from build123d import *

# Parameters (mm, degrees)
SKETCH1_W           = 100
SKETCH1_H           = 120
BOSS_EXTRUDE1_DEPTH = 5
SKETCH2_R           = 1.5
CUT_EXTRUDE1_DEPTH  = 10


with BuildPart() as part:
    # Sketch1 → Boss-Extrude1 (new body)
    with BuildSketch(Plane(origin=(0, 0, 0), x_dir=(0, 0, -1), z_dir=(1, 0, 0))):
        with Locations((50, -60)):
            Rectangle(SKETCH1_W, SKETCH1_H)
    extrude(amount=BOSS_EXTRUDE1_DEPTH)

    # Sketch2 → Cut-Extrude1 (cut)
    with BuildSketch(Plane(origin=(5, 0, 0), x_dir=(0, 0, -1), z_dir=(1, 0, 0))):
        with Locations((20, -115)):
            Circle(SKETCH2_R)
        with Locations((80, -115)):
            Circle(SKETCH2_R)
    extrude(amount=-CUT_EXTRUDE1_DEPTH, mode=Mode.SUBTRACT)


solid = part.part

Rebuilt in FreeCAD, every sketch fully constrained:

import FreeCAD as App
import Part
import Sketcher

V = App.Vector
Q = App.Units.Quantity

doc = App.newDocument("Part")
body = doc.addObject("PartDesign::Body", "Body")

# Sketch on YZ plane
sketch1 = doc.addObject("Sketcher::SketchObject", "Sketch")
body.addObject(sketch1)
sketch1.AttachmentSupport = (doc.YZ_Plane, [""])
sketch1.MapMode = "FlatFace"
sketch1.addGeometry([
    Part.LineSegment(V(0, 0, 0), V(-120, 0, 0)),
    Part.LineSegment(V(-120, 0, 0), V(-120, -100, 0)),
    Part.LineSegment(V(-120, -100, 0), V(0, -100, 0)),
    Part.LineSegment(V(0, -100, 0), V(0, 0, 0)),
], False)
sketch1.addConstraint([
    Sketcher.Constraint("Coincident", 0, 2, 1, 1),
    Sketcher.Constraint("Coincident", 1, 2, 2, 1),
    Sketcher.Constraint("Coincident", 2, 2, 3, 1),
    Sketcher.Constraint("Coincident", 3, 2, 0, 1),
    Sketcher.Constraint("Horizontal", 0),
    Sketcher.Constraint("Vertical", 1),
    Sketcher.Constraint("Horizontal", 2),
    Sketcher.Constraint("Vertical", 3),
    Sketcher.Constraint("Coincident", 3, 2, -1, 1),
    Sketcher.Constraint("DistanceX", 0, 2, 0, 1, Q("120 mm")),
    Sketcher.Constraint("DistanceY", 1, 2, 1, 1, Q("100 mm")),
])
pad1 = doc.addObject("PartDesign::Pad", "Pad")
body.addObject(pad1)
pad1.Profile = sketch1
pad1.Length = 5

# Sketch on YZ plane
sketch2 = doc.addObject("Sketcher::SketchObject", "Sketch001")
body.addObject(sketch2)
sketch2.AttachmentSupport = (doc.YZ_Plane, [""])
sketch2.MapMode = "FlatFace"
sketch2.AttachmentOffset = App.Placement(V(0, 0, 5), App.Rotation())
sketch2.addGeometry([
    Part.Circle(V(-115, -20, 0), V(0, 0, 1), 1.5),
    Part.Circle(V(-115, -80, 0), V(0, 0, 1), 1.5),
], False)
sketch2.addConstraint([
    Sketcher.Constraint("Equal", 0, 1),
    Sketcher.Constraint("Vertical", 0, 3, 1, 3),
    Sketcher.Constraint("Diameter", 0, Q("3 mm")),
    Sketcher.Constraint("DistanceX", 0, 3, -1, 1, Q("115 mm")),
    Sketcher.Constraint("DistanceY", 0, 3, -1, 1, Q("20 mm")),
    Sketcher.Constraint("DistanceY", 1, 3, -1, 1, Q("80 mm")),
])
pocket1 = doc.addObject("PartDesign::Pocket", "Pocket")
body.addObject(pocket1)
pocket1.Profile = sketch2
pocket1.Length = 10

doc.recompute()
